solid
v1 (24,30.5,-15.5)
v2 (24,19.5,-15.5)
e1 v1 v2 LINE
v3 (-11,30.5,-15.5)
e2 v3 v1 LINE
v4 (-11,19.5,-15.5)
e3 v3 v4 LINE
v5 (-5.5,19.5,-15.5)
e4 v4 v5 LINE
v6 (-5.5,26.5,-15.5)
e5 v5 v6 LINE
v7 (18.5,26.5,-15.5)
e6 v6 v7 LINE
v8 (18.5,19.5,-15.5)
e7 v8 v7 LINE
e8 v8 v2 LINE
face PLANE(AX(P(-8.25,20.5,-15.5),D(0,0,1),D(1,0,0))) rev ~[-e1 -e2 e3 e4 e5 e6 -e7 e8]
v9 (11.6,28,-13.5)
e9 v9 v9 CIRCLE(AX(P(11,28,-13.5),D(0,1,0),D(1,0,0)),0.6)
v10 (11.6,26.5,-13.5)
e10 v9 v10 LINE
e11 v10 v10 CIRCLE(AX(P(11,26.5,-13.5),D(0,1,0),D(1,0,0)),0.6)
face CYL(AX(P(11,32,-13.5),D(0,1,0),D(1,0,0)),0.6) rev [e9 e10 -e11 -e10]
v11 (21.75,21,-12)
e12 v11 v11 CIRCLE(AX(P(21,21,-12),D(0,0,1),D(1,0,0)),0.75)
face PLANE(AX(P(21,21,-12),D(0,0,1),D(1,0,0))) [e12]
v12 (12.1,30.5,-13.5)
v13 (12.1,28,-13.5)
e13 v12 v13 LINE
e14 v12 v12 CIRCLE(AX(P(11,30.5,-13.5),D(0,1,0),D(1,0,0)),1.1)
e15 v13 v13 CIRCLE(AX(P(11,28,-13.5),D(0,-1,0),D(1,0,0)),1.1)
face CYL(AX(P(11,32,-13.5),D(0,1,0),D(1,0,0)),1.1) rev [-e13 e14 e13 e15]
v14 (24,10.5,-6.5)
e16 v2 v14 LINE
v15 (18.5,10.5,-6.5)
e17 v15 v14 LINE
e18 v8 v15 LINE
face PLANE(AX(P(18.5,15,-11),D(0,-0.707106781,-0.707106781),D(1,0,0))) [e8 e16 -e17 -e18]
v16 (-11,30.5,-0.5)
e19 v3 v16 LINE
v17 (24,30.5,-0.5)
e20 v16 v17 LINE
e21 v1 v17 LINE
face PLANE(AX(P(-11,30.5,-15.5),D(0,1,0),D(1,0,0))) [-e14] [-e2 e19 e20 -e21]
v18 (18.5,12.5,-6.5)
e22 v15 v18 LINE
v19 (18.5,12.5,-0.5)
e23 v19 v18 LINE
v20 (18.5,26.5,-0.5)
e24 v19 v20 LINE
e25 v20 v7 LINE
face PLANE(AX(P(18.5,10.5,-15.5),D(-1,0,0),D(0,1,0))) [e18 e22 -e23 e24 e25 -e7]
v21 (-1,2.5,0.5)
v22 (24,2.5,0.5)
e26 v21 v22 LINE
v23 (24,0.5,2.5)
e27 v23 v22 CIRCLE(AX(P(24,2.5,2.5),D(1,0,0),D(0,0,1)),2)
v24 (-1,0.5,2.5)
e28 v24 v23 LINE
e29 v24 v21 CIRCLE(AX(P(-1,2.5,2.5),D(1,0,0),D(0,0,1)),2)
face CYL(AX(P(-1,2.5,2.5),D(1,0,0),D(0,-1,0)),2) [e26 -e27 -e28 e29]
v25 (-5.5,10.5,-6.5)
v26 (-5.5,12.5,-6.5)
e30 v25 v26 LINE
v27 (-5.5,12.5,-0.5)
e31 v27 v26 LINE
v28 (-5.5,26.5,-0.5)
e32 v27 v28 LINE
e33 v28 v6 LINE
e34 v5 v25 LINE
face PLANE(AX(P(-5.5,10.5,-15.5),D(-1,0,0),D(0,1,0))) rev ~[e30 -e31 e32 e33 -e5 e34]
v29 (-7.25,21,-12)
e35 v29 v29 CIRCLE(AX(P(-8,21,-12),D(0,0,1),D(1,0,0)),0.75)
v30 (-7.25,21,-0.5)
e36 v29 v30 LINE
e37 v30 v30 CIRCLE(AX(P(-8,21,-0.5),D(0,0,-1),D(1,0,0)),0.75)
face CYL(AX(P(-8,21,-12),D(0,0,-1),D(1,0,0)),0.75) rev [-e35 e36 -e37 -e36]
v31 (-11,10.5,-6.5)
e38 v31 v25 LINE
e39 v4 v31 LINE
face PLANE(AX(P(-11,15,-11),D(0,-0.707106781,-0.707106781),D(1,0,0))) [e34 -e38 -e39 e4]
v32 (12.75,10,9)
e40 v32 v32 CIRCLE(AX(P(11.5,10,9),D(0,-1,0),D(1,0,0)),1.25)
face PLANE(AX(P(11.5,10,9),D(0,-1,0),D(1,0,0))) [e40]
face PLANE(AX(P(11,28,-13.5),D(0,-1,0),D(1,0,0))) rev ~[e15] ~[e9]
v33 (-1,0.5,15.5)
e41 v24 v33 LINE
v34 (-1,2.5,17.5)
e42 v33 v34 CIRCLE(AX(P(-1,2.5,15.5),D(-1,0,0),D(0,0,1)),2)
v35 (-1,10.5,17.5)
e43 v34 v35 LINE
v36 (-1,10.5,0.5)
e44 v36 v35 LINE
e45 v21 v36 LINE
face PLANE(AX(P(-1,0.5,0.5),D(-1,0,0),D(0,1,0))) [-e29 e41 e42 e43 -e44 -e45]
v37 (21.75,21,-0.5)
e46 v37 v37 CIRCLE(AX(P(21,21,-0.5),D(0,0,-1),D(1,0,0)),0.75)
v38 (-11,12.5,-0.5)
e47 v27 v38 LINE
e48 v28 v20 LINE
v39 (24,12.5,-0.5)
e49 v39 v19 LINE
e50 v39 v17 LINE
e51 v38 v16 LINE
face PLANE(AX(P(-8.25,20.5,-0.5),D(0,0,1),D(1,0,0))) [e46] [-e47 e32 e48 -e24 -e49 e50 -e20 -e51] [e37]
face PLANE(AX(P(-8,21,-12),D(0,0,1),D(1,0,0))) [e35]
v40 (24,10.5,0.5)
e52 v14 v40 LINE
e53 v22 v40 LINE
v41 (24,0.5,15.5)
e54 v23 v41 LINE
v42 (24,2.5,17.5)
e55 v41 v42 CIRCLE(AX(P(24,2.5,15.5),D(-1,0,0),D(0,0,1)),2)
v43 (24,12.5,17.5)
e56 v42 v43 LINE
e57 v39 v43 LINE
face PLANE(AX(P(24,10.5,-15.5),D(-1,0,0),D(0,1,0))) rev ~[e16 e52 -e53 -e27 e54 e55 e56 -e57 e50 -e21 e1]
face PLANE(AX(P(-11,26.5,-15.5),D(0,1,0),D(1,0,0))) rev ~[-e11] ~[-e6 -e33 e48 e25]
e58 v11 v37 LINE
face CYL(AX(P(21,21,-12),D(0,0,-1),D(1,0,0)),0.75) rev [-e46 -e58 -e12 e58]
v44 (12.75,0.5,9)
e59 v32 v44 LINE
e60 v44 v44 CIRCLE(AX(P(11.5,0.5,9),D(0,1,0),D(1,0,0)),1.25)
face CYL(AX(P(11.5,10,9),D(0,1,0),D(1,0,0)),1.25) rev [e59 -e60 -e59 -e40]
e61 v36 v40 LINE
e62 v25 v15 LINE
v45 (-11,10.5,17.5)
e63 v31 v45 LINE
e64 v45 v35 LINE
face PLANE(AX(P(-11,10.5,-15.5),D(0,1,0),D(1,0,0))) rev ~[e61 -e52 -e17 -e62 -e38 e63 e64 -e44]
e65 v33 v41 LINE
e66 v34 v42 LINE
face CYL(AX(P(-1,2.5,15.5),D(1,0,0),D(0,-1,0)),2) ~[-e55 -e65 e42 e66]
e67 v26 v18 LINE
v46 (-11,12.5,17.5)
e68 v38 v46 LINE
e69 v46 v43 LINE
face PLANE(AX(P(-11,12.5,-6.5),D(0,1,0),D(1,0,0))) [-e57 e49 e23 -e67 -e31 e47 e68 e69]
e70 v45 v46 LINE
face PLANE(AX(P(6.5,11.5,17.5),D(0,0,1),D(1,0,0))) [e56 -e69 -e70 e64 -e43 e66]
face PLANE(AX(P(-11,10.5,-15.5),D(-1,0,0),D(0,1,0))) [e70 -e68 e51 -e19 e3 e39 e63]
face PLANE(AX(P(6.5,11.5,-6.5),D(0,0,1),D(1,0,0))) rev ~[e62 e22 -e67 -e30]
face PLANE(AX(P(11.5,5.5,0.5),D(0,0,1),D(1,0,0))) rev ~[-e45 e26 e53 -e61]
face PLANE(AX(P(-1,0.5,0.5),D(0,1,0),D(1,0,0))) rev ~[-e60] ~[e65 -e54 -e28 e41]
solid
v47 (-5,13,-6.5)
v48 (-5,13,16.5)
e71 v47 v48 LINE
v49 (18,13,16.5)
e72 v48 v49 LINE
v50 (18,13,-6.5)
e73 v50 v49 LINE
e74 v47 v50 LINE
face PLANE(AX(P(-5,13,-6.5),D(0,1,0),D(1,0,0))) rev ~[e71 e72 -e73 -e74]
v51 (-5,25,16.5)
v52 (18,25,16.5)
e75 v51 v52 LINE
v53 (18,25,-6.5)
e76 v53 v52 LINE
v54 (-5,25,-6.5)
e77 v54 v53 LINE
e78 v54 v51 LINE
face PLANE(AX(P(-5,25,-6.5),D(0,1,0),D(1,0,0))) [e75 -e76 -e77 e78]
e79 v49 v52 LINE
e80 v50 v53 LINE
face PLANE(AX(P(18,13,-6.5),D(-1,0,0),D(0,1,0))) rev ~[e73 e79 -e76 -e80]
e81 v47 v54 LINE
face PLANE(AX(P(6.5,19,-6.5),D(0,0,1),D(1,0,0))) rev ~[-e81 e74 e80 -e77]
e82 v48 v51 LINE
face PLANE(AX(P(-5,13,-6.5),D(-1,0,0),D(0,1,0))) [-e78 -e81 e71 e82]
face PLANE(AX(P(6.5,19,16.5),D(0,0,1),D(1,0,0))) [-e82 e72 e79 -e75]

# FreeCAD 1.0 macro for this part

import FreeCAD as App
import Part
import Sketcher
from FreeCAD import Vector
Q = App.Units.Quantity


def edges_at(feature, points):
    """Names of the edges that pass closest to the given points."""
    edges = feature.Shape.Edges
    near = lambda p: min(range(len(edges)), key=lambda i: edges[i].distToShape(Part.Vertex(*p))[0])
    return sorted({f"Edge{near(p) + 1}" for p in points})

doc = App.newDocument("Part")
body = doc.addObject("PartDesign::Body", "Body")

sketch1 = body.newObject("Sketcher::SketchObject", "Sketch")
sketch1.AttachmentSupport = (doc.getObject("XY_Plane"), [""])
sketch1.MapMode = "FlatFace"
sketch1.AttachmentOffset = App.Placement(Vector(0, 0, -6.5), App.Rotation())
sketch1.addGeometry([
    Part.LineSegment(Vector(-5, 25, 0), Vector(-5, 13, 0)),
    Part.LineSegment(Vector(-5, 13, 0), Vector(18, 13, 0)),
    Part.LineSegment(Vector(18, 13, 0), Vector(18, 25, 0)),
    Part.LineSegment(Vector(18, 25, 0), Vector(-5, 25, 0)),
], False)
sketch1.addConstraint([
    Sketcher.Constraint("Coincident", 0, 2, 1, 1),
    Sketcher.Constraint("Coincident", 1, 2, 2, 1),
    Sketcher.Constraint("Coincident", 2, 2, 3, 1),
    Sketcher.Constraint("Coincident", 3, 2, 0, 1),
    Sketcher.Constraint("Vertical", 0),
    Sketcher.Constraint("Horizontal", 1),
    Sketcher.Constraint("Vertical", 2),
    Sketcher.Constraint("Horizontal", 3),
    Sketcher.Constraint("DistanceX", 1, 1, 1, 2, Q("23 mm")),
    Sketcher.Constraint("DistanceY", 0, 2, 0, 1, Q("12 mm")),
    Sketcher.Constraint("DistanceX", 0, 2, -1, 1, Q("5 mm")),
    Sketcher.Constraint("DistanceY", -1, 1, 0, 2, Q("13 mm")),
])
pad1 = body.newObject("PartDesign::Pad", "Pad")
pad1.Profile = sketch1
pad1.Length = 23
body2 = doc.addObject("PartDesign::Body", "Body001")

sketch2 = body2.newObject("Sketcher::SketchObject", "Sketch001")
sketch2.AttachmentSupport = (doc.getObject("XY_Plane001"), [""])
sketch2.MapMode = "FlatFace"
sketch2.addGeometry(Part.Circle(Vector(0, 0, 0), Vector(0, 0, 1), 1.2), False)
sketch2.addConstraint([
    Sketcher.Constraint("Coincident", 0, 3, -1, 1),
    Sketcher.Constraint("Diameter", 0, Q("2.5 mm")),
])
pad2 = body2.newObject("PartDesign::Pad", "Pad001")
pad2.Profile = sketch2
pad2.Length = 10
body3 = doc.addObject("PartDesign::Body", "Body002")
doc.recompute()

body2.Placement = App.Placement(Vector(0, 0, 0), App.Rotation(Vector(1, 0, 0), 90))
boolean = body3.newObject("PartDesign::Boolean", "Boolean")
boolean.Type = "Fuse"
boolean.addObjects([body2])
body4 = doc.addObject("PartDesign::Body", "Body003")
doc.recompute()

body3.Placement = App.Placement(Vector(11.5, 10, 9), App.Rotation(Vector(0, 0, 1), 0))
boolean2 = body4.newObject("PartDesign::Boolean", "Boolean001")
boolean2.Type = "Fuse"
boolean2.addObjects([body3])
body5 = doc.addObject("PartDesign::Body", "Body004")

sketch3 = body5.newObject("Sketcher::SketchObject", "Sketch002")
sketch3.AttachmentSupport = (doc.getObject("XY_Plane004"), [""])
sketch3.MapMode = "FlatFace"
sketch3.addGeometry(Part.Circle(Vector(29, 0, 0), Vector(0, 0, 1), 0.8), False)
sketch3.addConstraint([
    Sketcher.Constraint("PointOnObject", 0, 3, -1),
    Sketcher.Constraint("Diameter", 0, Q("1.5 mm")),
    Sketcher.Constraint("DistanceX", -1, 1, 0, 3, Q("29 mm")),
])
pad3 = body5.newObject("PartDesign::Pad", "Pad002")
pad3.Profile = sketch3
pad3.Length = 12
body6 = doc.addObject("PartDesign::Body", "Body005")
body6.AllowCompound = True

sketch4 = body6.newObject("Sketcher::SketchObject", "Sketch003")
sketch4.AttachmentSupport = (doc.getObject("XY_Plane005"), [""])
sketch4.MapMode = "FlatFace"
sketch4.addGeometry(Part.Circle(Vector(0, 0, 0), Vector(0, 0, 1), 0.8), False)
sketch4.addConstraint([
    Sketcher.Constraint("Coincident", 0, 3, -1, 1),
    Sketcher.Constraint("Diameter", 0, Q("1.5 mm")),
])
pad4 = body6.newObject("PartDesign::Pad", "Pad003")
pad4.Profile = sketch4
pad4.Length = 12
doc.recompute()

boolean3 = body6.newObject("PartDesign::Boolean", "Boolean002")
boolean3.Type = "Fuse"
boolean3.addObjects([body5])
body7 = doc.addObject("PartDesign::Body", "Body006")
body7.AllowCompound = True
doc.recompute()

body6.Placement = App.Placement(Vector(-8, 21, -12), App.Rotation(Vector(0, 0, 1), 0))
boolean4 = body7.newObject("PartDesign::Boolean", "Boolean003")
boolean4.Type = "Fuse"
boolean4.addObjects([body6])
body8 = doc.addObject("PartDesign::Body", "Body007")

sketch5 = body8.newObject("Sketcher::SketchObject", "Sketch004")
sketch5.AttachmentSupport = (doc.getObject("XY_Plane007"), [""])
sketch5.MapMode = "FlatFace"
sketch5.addGeometry(Part.Circle(Vector(0, 0, 0), Vector(0, 0, 1), 0.6), False)
sketch5.addConstraint([
    Sketcher.Constraint("Coincident", 0, 3, -1, 1),
    Sketcher.Constraint("Diameter", 0, Q("1.2 mm")),
])
pad5 = body8.newObject("PartDesign::Pad", "Pad004")
pad5.Profile = sketch5
pad5.Length = 7
body9 = doc.addObject("PartDesign::Body", "Body008")
doc.recompute()

body8.Placement = App.Placement(Vector(0, 0, 0), App.Rotation(Vector(1, 0, 0), 90))
boolean5 = body9.newObject("PartDesign::Boolean", "Boolean004")
boolean5.Type = "Fuse"
boolean5.addObjects([body8])
body10 = doc.addObject("PartDesign::Body", "Body009")
doc.recompute()

body9.Placement = App.Placement(Vector(0, 30.5, 0), App.Rotation(Vector(0, 0, 1), 0))
boolean6 = body10.newObject("PartDesign::Boolean", "Boolean005")
boolean6.Type = "Fuse"
boolean6.addObjects([body9])
body11 = doc.addObject("PartDesign::Body", "Body010")

sketch6 = body11.newObject("Sketcher::SketchObject", "Sketch005")
sketch6.AttachmentSupport = (doc.getObject("XY_Plane010"), [""])
sketch6.MapMode = "FlatFace"
sketch6.addGeometry(Part.Circle(Vector(0, 0, 0), Vector(0, 0, 1), 1.1), False)
sketch6.addConstraint([
    Sketcher.Constraint("Coincident", 0, 3, -1, 1),
    Sketcher.Constraint("Diameter", 0, Q("2.2 mm")),
])
pad6 = body11.newObject("PartDesign::Pad", "Pad005")
pad6.Profile = sketch6
pad6.Length = 4
body12 = doc.addObject("PartDesign::Body", "Body011")
doc.recompute()

body11.Placement = App.Placement(Vector(0, 0, 0), App.Rotation(Vector(1, 0, 0), 90))
boolean7 = body12.newObject("PartDesign::Boolean", "Boolean006")
boolean7.Type = "Fuse"
boolean7.addObjects([body11])
body13 = doc.addObject("PartDesign::Body", "Body012")
doc.recompute()

body12.Placement = App.Placement(Vector(0, 30.5, 0), App.Rotation(Vector(0, 0, 1), 0))
boolean8 = body13.newObject("PartDesign::Boolean", "Boolean007")
boolean8.Type = "Fuse"
boolean8.addObjects([body12])
doc.recompute()

boolean9 = body13.newObject("PartDesign::Boolean", "Boolean008")
boolean9.Type = "Fuse"
boolean9.addObjects([body10])
body14 = doc.addObject("PartDesign::Body", "Body013")
doc.recompute()

body13.Placement = App.Placement(Vector(11, 1.5, -13.5), App.Rotation(Vector(0, 0, 1), 0))
boolean10 = body14.newObject("PartDesign::Boolean", "Boolean009")
boolean10.Type = "Fuse"
boolean10.addObjects([body13])
body15 = doc.addObject("PartDesign::Body", "Body014")

sketch7 = body15.newObject("Sketcher::SketchObject", "Sketch006")
sketch7.AttachmentSupport = (doc.getObject("XY_Plane014"), [""])
sketch7.MapMode = "FlatFace"
sketch7.AttachmentOffset = App.Placement(Vector(0, 0, -15.5), App.Rotation())
sketch7.addGeometry([
    Part.LineSegment(Vector(18, 30, 0), Vector(18, 10, 0)),
    Part.LineSegment(Vector(18, 10, 0), Vector(24, 10, 0)),
    Part.LineSegment(Vector(24, 10, 0), Vector(24, 30, 0)),
    Part.LineSegment(Vector(24, 30, 0), Vector(18, 30, 0)),
], False)
sketch7.addConstraint([
    Sketcher.Constraint("Coincident", 0, 2, 1, 1),
    Sketcher.Constraint("Coincident", 1, 2, 2, 1),
    Sketcher.Constraint("Coincident", 2, 2, 3, 1),
    Sketcher.Constraint("Coincident", 3, 2, 0, 1),
    Sketcher.Constraint("Vertical", 0),
    Sketcher.Constraint("Horizontal", 1),
    Sketcher.Constraint("Vertical", 2),
    Sketcher.Constraint("Horizontal", 3),
    Sketcher.Constraint("DistanceY", 0, 2, 0, 1, Q("20 mm")),
    Sketcher.Constraint("DistanceX", 1, 1, 1, 2, Q("5.5 mm")),
    Sketcher.Constraint("DistanceX", -1, 1, 1, 2, Q("24 mm")),
    Sketcher.Constraint("DistanceY", -1, 1, 0, 2, Q("10.5 mm")),
])
pad7 = body15.newObject("PartDesign::Pad", "Pad006")
pad7.Profile = sketch7
pad7.Length = 15
body16 = doc.addObject("PartDesign::Body", "Body015")

sketch8 = body16.newObject("Sketcher::SketchObject", "Sketch007")
sketch8.AttachmentSupport = (doc.getObject("XY_Plane015"), [""])
sketch8.MapMode = "FlatFace"
sketch8.AttachmentOffset = App.Placement(Vector(0, 0, -15.5), App.Rotation())
sketch8.addGeometry([
    Part.LineSegment(Vector(-11, 30.5, 0), Vector(-11, 26.5, 0)),
    Part.LineSegment(Vector(-11, 26.5, 0), Vector(24, 26.5, 0)),
    Part.LineSegment(Vector(24, 26.5, 0), Vector(24, 30.5, 0)),
    Part.LineSegment(Vector(24, 30.5, 0), Vector(-11, 30.5, 0)),
], False)
sketch8.addConstraint([
    Sketcher.Constraint("Coincident", 0, 2, 1, 1),
    Sketcher.Constraint("Coincident", 1, 2, 2, 1),
    Sketcher.Constraint("Coincident", 2, 2, 3, 1),
    Sketcher.Constraint("Coincident", 3, 2, 0, 1),
    Sketcher.Constraint("Vertical", 0),
    Sketcher.Constraint("Horizontal", 1),
    Sketcher.Constraint("Vertical", 2),
    Sketcher.Constraint("Horizontal", 3),
    Sketcher.Constraint("DistanceX", 1, 1, 1, 2, Q("35 mm")),
    Sketcher.Constraint("DistanceY", 0, 2, 0, 1, Q("4 mm")),
    Sketcher.Constraint("DistanceX", 0, 2, -1, 1, Q("11 mm")),
    Sketcher.Constraint("DistanceY", -1, 1, 0, 2, Q("26.5 mm")),
])
pad8 = body16.newObject("PartDesign::Pad", "Pad007")
pad8.Profile = sketch8
pad8.Length = 15
body17 = doc.addObject("PartDesign::Body", "Body016")

sketch9 = body17.newObject("Sketcher::SketchObject", "Sketch008")
sketch9.AttachmentSupport = (doc.getObject("XY_Plane016"), [""])
sketch9.MapMode = "FlatFace"
sketch9.AttachmentOffset = App.Placement(Vector(0, 0, -6.5), App.Rotation())
sketch9.addGeometry([
    Part.LineSegment(Vector(-11, 12.5, 0), Vector(-11, 10.5, 0)),
    Part.LineSegment(Vector(-11, 10.5, 0), Vector(24, 10.5, 0)),
    Part.LineSegment(Vector(24, 10.5, 0), Vector(24, 12.5, 0)),
    Part.LineSegment(Vector(24, 12.5, 0), Vector(-11, 12.5, 0)),
], False)
sketch9.addConstraint([
    Sketcher.Constraint("Coincident", 0, 2, 1, 1),
    Sketcher.Constraint("Coincident", 1, 2, 2, 1),
    Sketcher.Constraint("Coincident", 2, 2, 3, 1),
    Sketcher.Constraint("Coincident", 3, 2, 0, 1),
    Sketcher.Constraint("Vertical", 0),
    Sketcher.Constraint("Horizontal", 1),
    Sketcher.Constraint("Vertical", 2),
    Sketcher.Constraint("Horizontal", 3),
    Sketcher.Constraint("DistanceX", 1, 1, 1, 2, Q("35 mm")),
    Sketcher.Constraint("DistanceY", 0, 2, 0, 1, Q("2 mm")),
    Sketcher.Constraint("DistanceX", 0, 2, -1, 1, Q("11 mm")),
    Sketcher.Constraint("DistanceY", -1, 1, 0, 2, Q("10.5 mm")),
])
pad9 = body17.newObject("PartDesign::Pad", "Pad008")
pad9.Profile = sketch9
pad9.Length = 24
body18 = doc.addObject("PartDesign::Body", "Body017")
body18.AllowCompound = True

sketch10 = body18.newObject("Sketcher::SketchObject", "Sketch009")
sketch10.AttachmentSupport = (doc.getObject("XY_Plane017"), [""])
sketch10.MapMode = "FlatFace"
sketch10.AttachmentOffset = App.Placement(Vector(0, 0, -15.5), App.Rotation())
sketch10.addGeometry([
    Part.LineSegment(Vector(-11, 30, 0), Vector(-11, 10, 0)),
    Part.LineSegment(Vector(-11, 10, 0), Vector(-6, 10, 0)),
    Part.LineSegment(Vector(-6, 10, 0), Vector(-6, 30, 0)),
    Part.LineSegment(Vector(-6, 30, 0), Vector(-11, 30, 0)),
], False)
sketch10.addConstraint([
    Sketcher.Constraint("Coincident", 0, 2, 1, 1),
    Sketcher.Constraint("Coincident", 1, 2, 2, 1),
    Sketcher.Constraint("Coincident", 2, 2, 3, 1),
    Sketcher.Constraint("Coincident", 3, 2, 0, 1),
    Sketcher.Constraint("Vertical", 0),
    Sketcher.Constraint("Horizontal", 1),
    Sketcher.Constraint("Vertical", 2),
    Sketcher.Constraint("Horizontal", 3),
    Sketcher.Constraint("DistanceY", 0, 2, 0, 1, Q("20 mm")),
    Sketcher.Constraint("DistanceX", 1, 1, 1, 2, Q("5.5 mm")),
    Sketcher.Constraint("DistanceX", 0, 2, -1, 1, Q("11 mm")),
    Sketcher.Constraint("DistanceY", -1, 1, 0, 2, Q("10.5 mm")),
])
pad10 = body18.newObject("PartDesign::Pad", "Pad009")
pad10.Profile = sketch10
pad10.Length = 15
doc.recompute()

boolean11 = body18.newObject("PartDesign::Boolean", "Boolean010")
boolean11.Type = "Fuse"
boolean11.addObjects([body15])
doc.recompute()

boolean12 = body18.newObject("PartDesign::Boolean", "Boolean011")
boolean12.Type = "Fuse"
boolean12.addObjects([body16])
doc.recompute()

boolean13 = body18.newObject("PartDesign::Boolean", "Boolean012")
boolean13.Type = "Fuse"
boolean13.addObjects([body17])
doc.recompute()

boolean14 = body18.newObject("PartDesign::Boolean", "Boolean013")
boolean14.Type = "Cut"
boolean14.addObjects([body14])
doc.recompute()

chamfer = body18.newObject("PartDesign::Chamfer", "Chamfer")
chamfer.Base = (boolean14, edges_at(boolean14, [(21.25, 10.5, -15.5), (-8.25, 10.5, -15.5)]))
chamfer.Size = 9
body19 = doc.addObject("PartDesign::Body", "Body018")

sketch11 = body19.newObject("Sketcher::SketchObject", "Sketch010")
sketch11.AttachmentSupport = (doc.getObject("XY_Plane018"), [""])
sketch11.MapMode = "FlatFace"
sketch11.AttachmentOffset = App.Placement(Vector(0, 0, 1.5), App.Rotation())
sketch11.addGeometry([
    Part.LineSegment(Vector(0, 10, 0), Vector(0, 0, 0)),
    Part.LineSegment(Vector(0, 0, 0), Vector(25, 0, 0)),
    Part.LineSegment(Vector(25, 0, 0), Vector(25, 10, 0)),
    Part.LineSegment(Vector(25, 10, 0), Vector(0, 10, 0)),
], False)
sketch11.addConstraint([
    Sketcher.Constraint("Coincident", 0, 2, 1, 1),
    Sketcher.Constraint("Coincident", 1, 2, 2, 1),
    Sketcher.Constraint("Coincident", 2, 2, 3, 1),
    Sketcher.Constraint("Coincident", 3, 2, 0, 1),
    Sketcher.Constraint("Vertical", 0),
    Sketcher.Constraint("Horizontal", 1),
    Sketcher.Constraint("Vertical", 2),
    Sketcher.Constraint("Horizontal", 3),
    Sketcher.Constraint("Coincident", 0, 2, -1, 1),
    Sketcher.Constraint("DistanceX", 1, 1, 1, 2, Q("25 mm")),
    Sketcher.Constraint("DistanceY", 0, 2, 0, 1, Q("10 mm")),
])
pad11 = body19.newObject("PartDesign::Pad", "Pad010")
pad11.Profile = sketch11
pad11.Length = 17
doc.recompute()

fillet = body19.newObject("PartDesign::Fillet", "Fillet")
fillet.Base = (pad11, edges_at(pad11, [(12.5, 0, 1.5), (12.5, 0, 18.5)]))
fillet.Radius = 2
body20 = doc.addObject("PartDesign::Body", "Body019")
doc.recompute()

body19.Placement = App.Placement(Vector(-1, 0.5, -1), App.Rotation(Vector(0, 0, 1), 0))
boolean15 = body20.newObject("PartDesign::Boolean", "Boolean014")
boolean15.Type = "Fuse"
boolean15.addObjects([body19])
doc.recompute()

boolean16 = body20.newObject("PartDesign::Boolean", "Boolean015")
boolean16.Type = "Fuse"
boolean16.addObjects([body18])
doc.recompute()

boolean17 = body20.newObject("PartDesign::Boolean", "Boolean016")
boolean17.Type = "Cut"
boolean17.addObjects([body7])
doc.recompute()

boolean18 = body20.newObject("PartDesign::Boolean", "Boolean017")
boolean18.Type = "Cut"
boolean18.addObjects([body4])

doc.recompute()
